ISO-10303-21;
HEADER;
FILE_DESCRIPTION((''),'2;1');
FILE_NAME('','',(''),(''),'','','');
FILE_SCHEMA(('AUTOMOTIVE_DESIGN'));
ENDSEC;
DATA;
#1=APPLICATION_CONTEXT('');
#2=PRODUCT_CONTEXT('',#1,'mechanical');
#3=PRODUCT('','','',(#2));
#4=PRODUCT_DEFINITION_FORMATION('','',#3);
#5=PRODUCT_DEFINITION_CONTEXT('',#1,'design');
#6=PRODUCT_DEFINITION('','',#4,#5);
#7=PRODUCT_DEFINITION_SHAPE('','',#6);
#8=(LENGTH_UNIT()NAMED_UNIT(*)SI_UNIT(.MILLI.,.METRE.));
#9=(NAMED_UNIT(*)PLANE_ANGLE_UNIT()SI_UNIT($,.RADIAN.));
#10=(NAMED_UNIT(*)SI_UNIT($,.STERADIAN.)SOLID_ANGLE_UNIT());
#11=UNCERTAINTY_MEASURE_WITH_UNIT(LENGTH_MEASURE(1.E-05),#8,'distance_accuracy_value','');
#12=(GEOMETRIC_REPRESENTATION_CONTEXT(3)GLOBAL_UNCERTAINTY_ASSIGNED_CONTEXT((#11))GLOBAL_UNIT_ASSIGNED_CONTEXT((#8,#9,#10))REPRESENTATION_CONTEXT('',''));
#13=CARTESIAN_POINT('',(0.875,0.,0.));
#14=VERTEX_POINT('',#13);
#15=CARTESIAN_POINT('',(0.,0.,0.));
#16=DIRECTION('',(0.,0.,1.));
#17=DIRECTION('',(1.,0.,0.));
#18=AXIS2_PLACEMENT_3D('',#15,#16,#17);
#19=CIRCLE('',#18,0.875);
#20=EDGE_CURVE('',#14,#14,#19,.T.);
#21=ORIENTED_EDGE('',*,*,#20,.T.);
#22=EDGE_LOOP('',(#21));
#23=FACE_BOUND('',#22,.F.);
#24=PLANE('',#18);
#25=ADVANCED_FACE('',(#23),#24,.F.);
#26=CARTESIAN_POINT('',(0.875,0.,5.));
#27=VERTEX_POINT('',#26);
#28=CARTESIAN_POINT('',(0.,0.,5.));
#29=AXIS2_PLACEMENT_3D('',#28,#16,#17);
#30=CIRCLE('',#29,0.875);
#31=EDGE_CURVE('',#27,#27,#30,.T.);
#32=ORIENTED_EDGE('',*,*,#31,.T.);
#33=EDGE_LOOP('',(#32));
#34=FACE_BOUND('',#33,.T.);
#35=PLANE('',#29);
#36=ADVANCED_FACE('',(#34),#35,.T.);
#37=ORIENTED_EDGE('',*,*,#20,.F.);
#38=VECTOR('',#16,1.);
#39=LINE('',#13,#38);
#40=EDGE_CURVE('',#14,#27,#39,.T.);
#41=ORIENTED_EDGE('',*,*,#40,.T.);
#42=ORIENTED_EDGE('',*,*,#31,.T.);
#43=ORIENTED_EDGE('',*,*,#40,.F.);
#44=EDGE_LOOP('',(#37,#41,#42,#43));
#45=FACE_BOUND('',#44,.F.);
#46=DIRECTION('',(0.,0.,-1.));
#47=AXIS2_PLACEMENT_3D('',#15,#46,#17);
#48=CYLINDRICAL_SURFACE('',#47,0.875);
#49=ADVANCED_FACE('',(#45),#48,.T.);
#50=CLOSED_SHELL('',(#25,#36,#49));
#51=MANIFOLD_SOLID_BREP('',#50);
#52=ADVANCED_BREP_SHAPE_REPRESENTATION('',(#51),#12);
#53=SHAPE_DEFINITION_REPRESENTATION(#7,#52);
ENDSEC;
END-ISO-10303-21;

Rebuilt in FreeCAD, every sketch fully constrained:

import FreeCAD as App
import Part
import Sketcher
Q = App.Units.Quantity

doc = App.newDocument("Part")
body = doc.addObject("PartDesign::Body", "Body")

sketch1 = body.newObject("Sketcher::SketchObject", "Sketch")
sketch1.AttachmentSupport = (doc.getObject("XY_Plane"), [""])
sketch1.MapMode = "FlatFace"
sketch1.addGeometry(Part.Circle(App.Vector(0, 0, 0), App.Vector(0, 0, 1), 0.875), False)
sketch1.addConstraint(Sketcher.Constraint("Coincident", 0, 3, -1, 1))
sketch1.addConstraint(Sketcher.Constraint("Diameter", 0, Q("1.75 mm")))
pad1 = body.newObject("PartDesign::Pad", "Pad")
pad1.Profile = sketch1
pad1.Length = 5

doc.recompute()
